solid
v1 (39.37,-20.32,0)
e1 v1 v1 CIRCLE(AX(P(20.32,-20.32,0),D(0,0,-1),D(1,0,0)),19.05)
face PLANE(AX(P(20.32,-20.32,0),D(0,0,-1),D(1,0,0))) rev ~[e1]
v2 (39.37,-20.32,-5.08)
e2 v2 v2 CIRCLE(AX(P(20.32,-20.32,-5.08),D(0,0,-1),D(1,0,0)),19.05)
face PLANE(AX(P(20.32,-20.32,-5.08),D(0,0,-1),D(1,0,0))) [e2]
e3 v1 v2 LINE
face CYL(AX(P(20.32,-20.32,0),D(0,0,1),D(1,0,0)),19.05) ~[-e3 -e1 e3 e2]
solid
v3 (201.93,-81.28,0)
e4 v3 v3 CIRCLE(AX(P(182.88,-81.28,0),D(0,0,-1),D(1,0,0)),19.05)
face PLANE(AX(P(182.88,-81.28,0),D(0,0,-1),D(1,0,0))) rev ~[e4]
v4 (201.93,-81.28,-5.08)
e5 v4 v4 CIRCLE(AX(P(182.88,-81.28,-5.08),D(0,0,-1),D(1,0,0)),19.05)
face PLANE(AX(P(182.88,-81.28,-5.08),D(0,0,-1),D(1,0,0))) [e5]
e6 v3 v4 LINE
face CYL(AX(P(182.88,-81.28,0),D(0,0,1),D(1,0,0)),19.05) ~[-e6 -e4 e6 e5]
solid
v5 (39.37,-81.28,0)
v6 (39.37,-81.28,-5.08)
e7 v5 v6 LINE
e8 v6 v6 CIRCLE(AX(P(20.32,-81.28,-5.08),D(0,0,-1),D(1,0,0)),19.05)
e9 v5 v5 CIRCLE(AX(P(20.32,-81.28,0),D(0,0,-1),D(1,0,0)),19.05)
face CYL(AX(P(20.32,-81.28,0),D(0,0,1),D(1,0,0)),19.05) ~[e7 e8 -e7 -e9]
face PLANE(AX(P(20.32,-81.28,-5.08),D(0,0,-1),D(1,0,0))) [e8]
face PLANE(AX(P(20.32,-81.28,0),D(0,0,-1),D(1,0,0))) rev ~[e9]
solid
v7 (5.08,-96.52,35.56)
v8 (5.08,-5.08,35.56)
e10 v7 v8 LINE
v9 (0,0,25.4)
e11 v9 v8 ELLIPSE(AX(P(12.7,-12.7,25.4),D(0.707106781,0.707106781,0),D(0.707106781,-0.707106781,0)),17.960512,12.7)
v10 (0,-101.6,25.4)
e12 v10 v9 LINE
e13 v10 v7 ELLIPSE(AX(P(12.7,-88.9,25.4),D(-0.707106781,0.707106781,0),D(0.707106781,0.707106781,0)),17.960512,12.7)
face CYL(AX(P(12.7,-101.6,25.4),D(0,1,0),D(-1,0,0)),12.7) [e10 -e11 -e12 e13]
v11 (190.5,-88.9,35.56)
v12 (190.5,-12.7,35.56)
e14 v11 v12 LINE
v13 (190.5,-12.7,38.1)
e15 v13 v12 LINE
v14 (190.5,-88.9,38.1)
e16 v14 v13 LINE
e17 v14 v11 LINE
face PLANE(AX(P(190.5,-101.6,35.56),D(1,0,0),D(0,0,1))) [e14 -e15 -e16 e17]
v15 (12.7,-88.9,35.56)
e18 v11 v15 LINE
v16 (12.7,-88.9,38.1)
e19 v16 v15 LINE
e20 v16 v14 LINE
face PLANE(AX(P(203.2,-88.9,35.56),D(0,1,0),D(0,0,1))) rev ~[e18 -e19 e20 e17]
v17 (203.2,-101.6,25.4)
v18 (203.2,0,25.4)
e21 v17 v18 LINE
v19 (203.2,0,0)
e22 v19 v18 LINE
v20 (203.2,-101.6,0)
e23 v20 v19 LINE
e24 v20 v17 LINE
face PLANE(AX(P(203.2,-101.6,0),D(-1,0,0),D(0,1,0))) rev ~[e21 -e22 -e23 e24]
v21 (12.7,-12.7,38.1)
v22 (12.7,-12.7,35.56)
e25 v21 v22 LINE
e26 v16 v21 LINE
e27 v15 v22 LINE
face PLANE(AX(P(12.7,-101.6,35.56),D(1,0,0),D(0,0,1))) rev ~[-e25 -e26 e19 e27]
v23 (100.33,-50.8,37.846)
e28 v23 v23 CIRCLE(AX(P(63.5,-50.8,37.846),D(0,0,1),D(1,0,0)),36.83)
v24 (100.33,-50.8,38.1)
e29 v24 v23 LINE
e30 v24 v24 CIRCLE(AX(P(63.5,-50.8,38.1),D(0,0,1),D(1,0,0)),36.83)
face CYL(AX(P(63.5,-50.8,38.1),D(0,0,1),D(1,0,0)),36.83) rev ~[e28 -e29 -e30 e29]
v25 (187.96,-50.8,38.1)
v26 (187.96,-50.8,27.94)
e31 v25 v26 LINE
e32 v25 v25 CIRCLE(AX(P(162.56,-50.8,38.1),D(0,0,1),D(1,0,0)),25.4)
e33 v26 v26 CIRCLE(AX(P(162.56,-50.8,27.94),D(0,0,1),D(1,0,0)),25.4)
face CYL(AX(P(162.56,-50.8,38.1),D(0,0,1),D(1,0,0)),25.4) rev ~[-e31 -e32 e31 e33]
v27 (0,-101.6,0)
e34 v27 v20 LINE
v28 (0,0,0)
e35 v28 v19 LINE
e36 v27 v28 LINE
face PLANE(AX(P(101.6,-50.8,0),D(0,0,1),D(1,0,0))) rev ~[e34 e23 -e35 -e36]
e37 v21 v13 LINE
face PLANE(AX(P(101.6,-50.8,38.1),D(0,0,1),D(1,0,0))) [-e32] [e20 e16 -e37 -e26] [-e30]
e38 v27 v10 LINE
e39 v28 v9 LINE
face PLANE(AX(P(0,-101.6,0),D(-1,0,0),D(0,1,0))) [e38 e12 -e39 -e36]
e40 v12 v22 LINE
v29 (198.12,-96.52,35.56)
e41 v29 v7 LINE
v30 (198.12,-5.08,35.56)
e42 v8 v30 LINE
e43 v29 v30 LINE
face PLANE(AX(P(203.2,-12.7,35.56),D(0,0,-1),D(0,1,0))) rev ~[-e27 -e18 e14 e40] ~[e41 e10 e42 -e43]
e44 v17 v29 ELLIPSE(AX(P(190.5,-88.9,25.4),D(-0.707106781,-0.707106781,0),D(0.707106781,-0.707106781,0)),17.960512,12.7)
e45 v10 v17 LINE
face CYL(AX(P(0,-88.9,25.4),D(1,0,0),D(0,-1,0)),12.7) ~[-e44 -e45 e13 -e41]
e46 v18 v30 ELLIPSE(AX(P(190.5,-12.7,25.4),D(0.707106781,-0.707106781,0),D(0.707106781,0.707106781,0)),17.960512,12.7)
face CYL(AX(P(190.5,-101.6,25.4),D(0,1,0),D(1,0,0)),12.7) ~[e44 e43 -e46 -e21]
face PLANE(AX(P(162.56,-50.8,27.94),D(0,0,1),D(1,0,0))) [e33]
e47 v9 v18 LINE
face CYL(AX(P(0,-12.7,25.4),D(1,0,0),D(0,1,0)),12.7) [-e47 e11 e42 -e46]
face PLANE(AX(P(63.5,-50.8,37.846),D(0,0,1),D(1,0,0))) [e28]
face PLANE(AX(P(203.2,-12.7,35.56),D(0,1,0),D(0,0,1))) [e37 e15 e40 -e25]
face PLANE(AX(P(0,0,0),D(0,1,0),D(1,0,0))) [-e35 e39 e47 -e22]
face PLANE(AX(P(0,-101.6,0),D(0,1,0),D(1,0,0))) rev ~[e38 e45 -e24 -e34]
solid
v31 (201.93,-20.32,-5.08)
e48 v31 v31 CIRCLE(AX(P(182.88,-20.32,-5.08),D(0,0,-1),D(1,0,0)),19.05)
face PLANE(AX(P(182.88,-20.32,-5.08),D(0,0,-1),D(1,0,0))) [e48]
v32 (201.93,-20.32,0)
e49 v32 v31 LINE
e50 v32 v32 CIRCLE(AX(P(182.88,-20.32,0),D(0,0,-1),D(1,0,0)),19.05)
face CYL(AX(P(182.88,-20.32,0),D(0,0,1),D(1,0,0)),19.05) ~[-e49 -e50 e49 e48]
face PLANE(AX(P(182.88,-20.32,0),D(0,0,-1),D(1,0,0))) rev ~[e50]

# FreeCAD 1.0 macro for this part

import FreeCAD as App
import Part
import Sketcher

V = App.Vector
Q = App.Units.Quantity


def edges_at(feature, points):
    """Names of the edges that pass closest to the given points."""
    edges = feature.Shape.Edges
    near = lambda p: min(range(len(edges)), key=lambda i: edges[i].distToShape(Part.Vertex(*p))[0])
    return sorted({f"Edge{near(p) + 1}" for p in points})


def add_polygon(sketch, points):
    """Adds a closed chain of lines whose ends are joined by coincident constraints."""
    first, n = sketch.GeometryCount, len(points)
    for a, b in zip(points, points[1:] + points[:1]):
        sketch.addGeometry(Part.LineSegment(App.Vector(*a, 0), App.Vector(*b, 0)), False)
    for i in range(n):
        sketch.addConstraint(Sketcher.Constraint("Coincident", first + i, 2, first + (i + 1) % n, 1))

doc = App.newDocument("Part")
body = doc.addObject("PartDesign::Body", "Body")

# Sketch on XY plane
sketch1 = body.newObject("Sketcher::SketchObject", "Sketch")
sketch1.AttachmentSupport = (doc.getObject("XY_Plane"), [""])
sketch1.MapMode = "FlatFace"
add_polygon(sketch1, [(0, 0), (0, -102), (203, -102), (203, 0)])  # lines 0-3
sketch1.addConstraint([
    Sketcher.Constraint("Vertical", 0),
    Sketcher.Constraint("Horizontal", 1),
    Sketcher.Constraint("Vertical", 2),
    Sketcher.Constraint("Horizontal", 3),
    Sketcher.Constraint("Coincident", 3, 2, -1, 1),
    Sketcher.Constraint("DistanceX", 1, 1, 1, 2, Q("8 in")),
    Sketcher.Constraint("DistanceY", 0, 2, 0, 1, Q("4 in")),
])
pad1 = body.newObject("PartDesign::Pad", "Pad")
pad1.Profile = sketch1
pad1.Length = Q("1.5 in")
doc.recompute()

fillet = body.newObject("PartDesign::Fillet", "Fillet")
fillet.Base = (pad1, edges_at(pad1, [
    (101.6, 0, 38.1),
    (0, -50.8, 38.1),
    (101.6, -101.6, 38.1),
    (203.2, -50.8, 38.1),
]))
fillet.Radius = Q("0.5 in")

# Sketch on YZ plane
sketch2 = body.newObject("Sketcher::SketchObject", "Sketch001")
sketch2.AttachmentSupport = (doc.getObject("YZ_Plane"), [""])
sketch2.MapMode = "FlatFace"
sketch2.AttachmentOffset = App.Placement(V(0, 0, 8 * 25.4), App.Rotation())
add_polygon(sketch2, [(-12.7, 38.1), (-12.7, 35.6), (0, 35.6), (0, 38.1)])  # lines 0-3
add_polygon(sketch2, [(-101.6, 38.1), (-101.6, 35.6), (-88.9, 35.6), (-88.9, 38.1)])  # lines 4-7
sketch2.addConstraint([
    Sketcher.Constraint("Vertical", 0),
    Sketcher.Constraint("Horizontal", 1),
    Sketcher.Constraint("Vertical", 2),
    Sketcher.Constraint("Horizontal", 3),
    Sketcher.Constraint("Vertical", 4),
    Sketcher.Constraint("Horizontal", 5),
    Sketcher.Constraint("Vertical", 6),
    Sketcher.Constraint("Horizontal", 7),
    Sketcher.Constraint("PointOnObject", 1, 2, -2),
    Sketcher.Constraint("Horizontal", 1, 2, 4, 2),
    Sketcher.Constraint("Horizontal", 3, 2, 6, 2),
    Sketcher.Constraint("Equal", 3, 5),
    Sketcher.Constraint("DistanceX", 1, 1, 1, 2, Q("0.5 in")),
    Sketcher.Constraint("DistanceY", 0, 2, 0, 1, Q("0.1 in")),
    Sketcher.Constraint("DistanceX", 4, 2, -1, 1, Q("4 in")),
    Sketcher.Constraint("DistanceY", -1, 1, 0, 2, Q("1.4 in")),
])
pocket1 = body.newObject("PartDesign::Pocket", "Pocket")
pocket1.Profile = sketch2
pocket1.Type = "ThroughAll"

# Sketch on XZ plane
sketch3 = body.newObject("Sketcher::SketchObject", "Sketch002")
sketch3.AttachmentSupport = (doc.getObject("XZ_Plane"), [""])
sketch3.MapMode = "FlatFace"
sketch3.AttachmentOffset = App.Placement(V(0, 0, 4 * 25.4), App.Rotation())
add_polygon(sketch3, [(190.5, 38.1), (190.5, 35.6), (203.2, 35.6), (203.2, 38.1)])  # lines 0-3
add_polygon(sketch3, [(0, 38.1), (0, 35.6), (12.7, 35.6), (12.7, 38.1)])  # lines 4-7
sketch3.addConstraint([
    Sketcher.Constraint("Vertical", 0),
    Sketcher.Constraint("Horizontal", 1),
    Sketcher.Constraint("Vertical", 2),
    Sketcher.Constraint("Horizontal", 3),
    Sketcher.Constraint("Vertical", 4),
    Sketcher.Constraint("Horizontal", 5),
    Sketcher.Constraint("Vertical", 6),
    Sketcher.Constraint("Horizontal", 7),
    Sketcher.Constraint("PointOnObject", 4, 2, -2),
    Sketcher.Constraint("Horizontal", 1, 2, 4, 2),
    Sketcher.Constraint("Horizontal", 3, 2, 6, 2),
    Sketcher.Constraint("Equal", 3, 5),
    Sketcher.Constraint("DistanceX", 1, 1, 1, 2, Q("0.5 in")),
    Sketcher.Constraint("DistanceY", 0, 2, 0, 1, Q("0.1 in")),
    Sketcher.Constraint("DistanceX", -1, 1, 1, 2, Q("8 in")),
    Sketcher.Constraint("DistanceY", -1, 1, 0, 2, Q("1.4 in")),
])
pocket2 = body.newObject("PartDesign::Pocket", "Pocket001")
pocket2.Profile = sketch3
pocket2.Type = "ThroughAll"

# Sketch on XY plane
sketch4 = body.newObject("Sketcher::SketchObject", "Sketch003")
sketch4.AttachmentSupport = (doc.getObject("XY_Plane"), [""])
sketch4.MapMode = "FlatFace"
sketch4.AttachmentOffset = App.Placement(V(0, 0, 1.5 * 25.4), App.Rotation())
sketch4.addGeometry(Part.Circle(V(163, -51, 0), V(0, 0, 1), 25), False)
sketch4.addConstraint([
    Sketcher.Constraint("Diameter", 0, Q("2 in")),
    Sketcher.Constraint("DistanceY", 0, 3, -1, 1, Q("2 in")),
    Sketcher.Constraint("DistanceX", -1, 1, 0, 3, Q("6.4 in")),
])
pocket3 = body.newObject("PartDesign::Pocket", "Pocket002")
pocket3.Profile = sketch4
pocket3.Length = Q("0.4 in")

# Sketch on XY plane
sketch5 = body.newObject("Sketcher::SketchObject", "Sketch004")
sketch5.AttachmentSupport = (doc.getObject("XY_Plane"), [""])
sketch5.MapMode = "FlatFace"
sketch5.AttachmentOffset = App.Placement(V(0, 0, 1.5 * 25.4), App.Rotation())
sketch5.addGeometry(Part.Circle(V(64, -51, 0), V(0, 0, 1), 37), False)
sketch5.addConstraint([
    Sketcher.Constraint("Diameter", 0, Q("2.9 in")),
    Sketcher.Constraint("DistanceY", 0, 3, -1, 1, Q("2 in")),
    Sketcher.Constraint("DistanceX", -1, 1, 0, 3, Q("2.5 in")),
])
pocket4 = body.newObject("PartDesign::Pocket", "Pocket003")
pocket4.Profile = sketch5
pocket4.Length = Q("0.01 in")
body2 = doc.addObject("PartDesign::Body", "Body001")
body2.AllowCompound = True

# Sketch on XY plane
sketch6 = body2.newObject("Sketcher::SketchObject", "Sketch005")
sketch6.AttachmentSupport = (doc.getObject("XY_Plane001"), [""])
sketch6.MapMode = "FlatFace"
sketch6.addGeometry([
    Part.Circle(V(20, -81, 0), V(0, 0, 1), 19),
    Part.Circle(V(20, -20, 0), V(0, 0, 1), 19),
    Part.Circle(V(183, -81, 0), V(0, 0, 1), 19),
    Part.Circle(V(183, -20, 0), V(0, 0, 1), 19),
], False)
sketch6.addConstraint([
    Sketcher.Constraint("Equal", 0, 1),
    Sketcher.Constraint("Equal", 1, 2),
    Sketcher.Constraint("Equal", 2, 3),
    Sketcher.Constraint("Horizontal", 0, 3, 2, 3),
    Sketcher.Constraint("Horizontal", 1, 3, 3, 3),
    Sketcher.Constraint("Vertical", 0, 3, 1, 3),
    Sketcher.Constraint("Vertical", 2, 3, 3, 3),
    Sketcher.Constraint("Diameter", 0, Q("1.5 in")),
    Sketcher.Constraint("DistanceX", -1, 1, 0, 3, Q("0.8 in")),
    Sketcher.Constraint("DistanceY", 0, 3, -1, 1, Q("3.2 in")),
    Sketcher.Constraint("DistanceY", 1, 3, -1, 1, Q("0.8 in")),
    Sketcher.Constraint("DistanceX", -1, 1, 2, 3, Q("7.2 in")),
])
pad2 = body2.newObject("PartDesign::Pad", "Pad001")
pad2.Profile = sketch6
pad2.Length = Q("0.2 in")
pad2.Reversed = True

doc.recompute()
